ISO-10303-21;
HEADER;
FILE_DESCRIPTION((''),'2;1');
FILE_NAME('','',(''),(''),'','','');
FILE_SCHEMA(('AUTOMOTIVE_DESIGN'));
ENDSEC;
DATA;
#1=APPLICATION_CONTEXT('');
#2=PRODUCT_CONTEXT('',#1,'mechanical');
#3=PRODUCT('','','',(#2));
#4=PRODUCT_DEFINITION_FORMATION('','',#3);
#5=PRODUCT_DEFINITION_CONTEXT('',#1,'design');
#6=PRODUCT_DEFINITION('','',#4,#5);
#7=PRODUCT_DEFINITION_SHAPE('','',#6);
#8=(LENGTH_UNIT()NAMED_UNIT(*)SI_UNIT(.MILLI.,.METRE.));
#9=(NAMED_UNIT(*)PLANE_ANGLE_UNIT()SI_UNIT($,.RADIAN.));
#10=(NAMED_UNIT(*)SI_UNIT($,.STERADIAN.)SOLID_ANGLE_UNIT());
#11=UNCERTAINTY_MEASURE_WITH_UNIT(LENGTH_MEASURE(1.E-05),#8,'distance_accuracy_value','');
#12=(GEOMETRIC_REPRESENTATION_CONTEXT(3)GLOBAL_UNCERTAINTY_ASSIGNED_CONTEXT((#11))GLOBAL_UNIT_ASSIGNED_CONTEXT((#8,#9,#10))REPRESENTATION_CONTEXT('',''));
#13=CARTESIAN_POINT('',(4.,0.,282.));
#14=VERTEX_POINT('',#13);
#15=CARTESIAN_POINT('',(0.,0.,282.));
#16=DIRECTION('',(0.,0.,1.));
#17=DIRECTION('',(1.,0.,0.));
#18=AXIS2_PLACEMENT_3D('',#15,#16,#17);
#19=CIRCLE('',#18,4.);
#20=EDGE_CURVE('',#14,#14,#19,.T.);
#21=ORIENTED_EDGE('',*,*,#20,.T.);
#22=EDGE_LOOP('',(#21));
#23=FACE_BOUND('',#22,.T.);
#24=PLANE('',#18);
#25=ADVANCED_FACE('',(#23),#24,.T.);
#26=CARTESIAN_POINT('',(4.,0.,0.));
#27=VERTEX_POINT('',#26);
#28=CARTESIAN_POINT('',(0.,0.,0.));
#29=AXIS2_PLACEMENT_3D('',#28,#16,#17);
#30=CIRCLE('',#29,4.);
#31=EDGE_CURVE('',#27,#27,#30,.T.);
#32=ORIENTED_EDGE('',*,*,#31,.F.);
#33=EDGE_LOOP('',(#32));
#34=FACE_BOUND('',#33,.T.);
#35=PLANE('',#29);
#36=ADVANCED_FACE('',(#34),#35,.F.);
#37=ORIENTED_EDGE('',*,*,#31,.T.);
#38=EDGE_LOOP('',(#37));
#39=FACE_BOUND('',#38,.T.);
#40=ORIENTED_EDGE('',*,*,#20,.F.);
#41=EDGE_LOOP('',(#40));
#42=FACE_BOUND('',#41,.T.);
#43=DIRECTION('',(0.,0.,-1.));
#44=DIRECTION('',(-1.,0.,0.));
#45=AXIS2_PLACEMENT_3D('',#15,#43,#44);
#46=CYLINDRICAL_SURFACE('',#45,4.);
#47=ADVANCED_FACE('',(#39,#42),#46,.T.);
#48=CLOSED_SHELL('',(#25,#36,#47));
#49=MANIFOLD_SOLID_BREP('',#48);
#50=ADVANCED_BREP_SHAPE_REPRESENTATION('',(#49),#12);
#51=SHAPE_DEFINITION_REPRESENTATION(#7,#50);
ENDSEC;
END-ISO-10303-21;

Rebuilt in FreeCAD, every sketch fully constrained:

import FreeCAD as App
import Part
import Sketcher
Q = App.Units.Quantity

doc = App.newDocument("Part")
params = doc.addObject("Spreadsheet::Sheet", "Params")
for row, (alias, value) in enumerate([
    ("sketch1_diameter", "8 mm"),
    ("pad1_length", "282 mm"),
], start=1):
    params.set(f"A{row}", alias)
    params.set(f"B{row}", "=" + value)
    params.setAlias(f"B{row}", alias)

body = doc.addObject("PartDesign::Body", "Body")

# Sketch on XY plane
sketch1 = doc.addObject("Sketcher::SketchObject", "Sketch")
body.addObject(sketch1)
sketch1.AttachmentSupport = (doc.XY_Plane, [""])
sketch1.MapMode = "FlatFace"
sketch1.addGeometry(Part.Circle(App.Vector(0, 0, 0), App.Vector(0, 0, 1), 4), False)
sketch1.addConstraint([
    Sketcher.Constraint("Coincident", 0, 3, -1, 1),
    Sketcher.Constraint("Diameter", 0, Q("8 mm")),
])
sketch1.setExpression("Constraints[1]", "Params.sketch1_diameter")
pad1 = doc.addObject("PartDesign::Pad", "Pad")
body.addObject(pad1)
pad1.Profile = sketch1
pad1.setExpression("Length", "Params.pad1_length")

doc.recompute()
